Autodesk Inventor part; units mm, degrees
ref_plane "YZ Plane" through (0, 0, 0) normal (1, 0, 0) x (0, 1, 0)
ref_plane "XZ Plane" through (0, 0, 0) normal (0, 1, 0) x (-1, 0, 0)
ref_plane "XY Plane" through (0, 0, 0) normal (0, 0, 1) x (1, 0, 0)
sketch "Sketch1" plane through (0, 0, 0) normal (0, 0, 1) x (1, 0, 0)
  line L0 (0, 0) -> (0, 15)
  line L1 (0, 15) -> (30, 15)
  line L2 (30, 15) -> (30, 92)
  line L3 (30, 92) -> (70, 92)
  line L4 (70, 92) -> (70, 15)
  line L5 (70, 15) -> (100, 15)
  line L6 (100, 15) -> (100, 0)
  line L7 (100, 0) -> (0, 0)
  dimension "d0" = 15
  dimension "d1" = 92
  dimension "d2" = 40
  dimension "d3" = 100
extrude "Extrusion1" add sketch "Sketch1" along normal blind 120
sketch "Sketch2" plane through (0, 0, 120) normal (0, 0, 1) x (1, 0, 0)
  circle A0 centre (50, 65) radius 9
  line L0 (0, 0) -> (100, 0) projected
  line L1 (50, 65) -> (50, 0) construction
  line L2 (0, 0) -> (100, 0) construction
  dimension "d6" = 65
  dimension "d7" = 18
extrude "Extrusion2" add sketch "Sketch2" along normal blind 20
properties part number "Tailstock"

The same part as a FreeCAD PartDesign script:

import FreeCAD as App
import Part
import Sketcher


def add_polygon(sketch, points):
    """Adds a closed chain of lines whose ends are joined by coincident constraints."""
    first, n = sketch.GeometryCount, len(points)
    for a, b in zip(points, points[1:] + points[:1]):
        sketch.addGeometry(Part.LineSegment(App.Vector(*a, 0), App.Vector(*b, 0)), False)
    for i in range(n):
        sketch.addConstraint(Sketcher.Constraint("Coincident", first + i, 2, first + (i + 1) % n, 1))

doc = App.newDocument("Part")
body = doc.addObject("PartDesign::Body", "Body")

# Sketch on XY plane
sketch1 = body.newObject("Sketcher::SketchObject", "Sketch")
sketch1.AttachmentSupport = (doc.getObject("XY_Plane"), [""])
sketch1.MapMode = "FlatFace"
add_polygon(sketch1, [(0, 15), (0, 0), (100, 0), (100, 15), (70, 15), (70, 92), (30, 92), (30, 15)])  # lines 0-7
sketch1.addConstraint(Sketcher.Constraint("Vertical", 0))
sketch1.addConstraint(Sketcher.Constraint("Horizontal", 1))
sketch1.addConstraint(Sketcher.Constraint("Vertical", 2))
sketch1.addConstraint(Sketcher.Constraint("Horizontal", 3))
sketch1.addConstraint(Sketcher.Constraint("Vertical", 4))
sketch1.addConstraint(Sketcher.Constraint("Horizontal", 5))
sketch1.addConstraint(Sketcher.Constraint("Vertical", 6))
sketch1.addConstraint(Sketcher.Constraint("Horizontal", 7))
sketch1.addConstraint(Sketcher.Constraint("Coincident", 0, 2, -1, 1))
sketch1.addConstraint(Sketcher.Constraint("Horizontal", 3, 2, 6, 2))
sketch1.addConstraint(Sketcher.Constraint("Equal", 3, 7))
sketch1.addConstraint(Sketcher.Constraint("DistanceX", 1, 1, 1, 2, 100.0))
sketch1.addConstraint(Sketcher.Constraint("DistanceX", 5, 2, 5, 1, 40.0))
sketch1.addConstraint(Sketcher.Constraint("DistanceY", 0, 2, 0, 1, 15.0))
sketch1.addConstraint(Sketcher.Constraint("DistanceY", -1, 1, 4, 2, 92.0))
pad1 = body.newObject("PartDesign::Pad", "Pad")
pad1.Profile = sketch1
pad1.Length = 120

# Sketch on XY plane
sketch2 = body.newObject("Sketcher::SketchObject", "Sketch001")
sketch2.AttachmentSupport = (doc.getObject("XY_Plane"), [""])
sketch2.MapMode = "FlatFace"
sketch2.AttachmentOffset = App.Placement(App.Vector(0, 0, 120), App.Rotation())
sketch2.addGeometry(Part.Circle(App.Vector(50, 65, 0), App.Vector(0, 0, 1), 9), False)
sketch2.addConstraint(Sketcher.Constraint("Diameter", 0, 18.0))
sketch2.addConstraint(Sketcher.Constraint("DistanceY", -1, 1, 0, 3, 65.0))
sketch2.addConstraint(Sketcher.Constraint("DistanceX", -1, 1, 0, 3, 50.0))
pad2 = body.newObject("PartDesign::Pad", "Pad001")
pad2.Profile = sketch2
pad2.Length = 20

doc.recompute()
